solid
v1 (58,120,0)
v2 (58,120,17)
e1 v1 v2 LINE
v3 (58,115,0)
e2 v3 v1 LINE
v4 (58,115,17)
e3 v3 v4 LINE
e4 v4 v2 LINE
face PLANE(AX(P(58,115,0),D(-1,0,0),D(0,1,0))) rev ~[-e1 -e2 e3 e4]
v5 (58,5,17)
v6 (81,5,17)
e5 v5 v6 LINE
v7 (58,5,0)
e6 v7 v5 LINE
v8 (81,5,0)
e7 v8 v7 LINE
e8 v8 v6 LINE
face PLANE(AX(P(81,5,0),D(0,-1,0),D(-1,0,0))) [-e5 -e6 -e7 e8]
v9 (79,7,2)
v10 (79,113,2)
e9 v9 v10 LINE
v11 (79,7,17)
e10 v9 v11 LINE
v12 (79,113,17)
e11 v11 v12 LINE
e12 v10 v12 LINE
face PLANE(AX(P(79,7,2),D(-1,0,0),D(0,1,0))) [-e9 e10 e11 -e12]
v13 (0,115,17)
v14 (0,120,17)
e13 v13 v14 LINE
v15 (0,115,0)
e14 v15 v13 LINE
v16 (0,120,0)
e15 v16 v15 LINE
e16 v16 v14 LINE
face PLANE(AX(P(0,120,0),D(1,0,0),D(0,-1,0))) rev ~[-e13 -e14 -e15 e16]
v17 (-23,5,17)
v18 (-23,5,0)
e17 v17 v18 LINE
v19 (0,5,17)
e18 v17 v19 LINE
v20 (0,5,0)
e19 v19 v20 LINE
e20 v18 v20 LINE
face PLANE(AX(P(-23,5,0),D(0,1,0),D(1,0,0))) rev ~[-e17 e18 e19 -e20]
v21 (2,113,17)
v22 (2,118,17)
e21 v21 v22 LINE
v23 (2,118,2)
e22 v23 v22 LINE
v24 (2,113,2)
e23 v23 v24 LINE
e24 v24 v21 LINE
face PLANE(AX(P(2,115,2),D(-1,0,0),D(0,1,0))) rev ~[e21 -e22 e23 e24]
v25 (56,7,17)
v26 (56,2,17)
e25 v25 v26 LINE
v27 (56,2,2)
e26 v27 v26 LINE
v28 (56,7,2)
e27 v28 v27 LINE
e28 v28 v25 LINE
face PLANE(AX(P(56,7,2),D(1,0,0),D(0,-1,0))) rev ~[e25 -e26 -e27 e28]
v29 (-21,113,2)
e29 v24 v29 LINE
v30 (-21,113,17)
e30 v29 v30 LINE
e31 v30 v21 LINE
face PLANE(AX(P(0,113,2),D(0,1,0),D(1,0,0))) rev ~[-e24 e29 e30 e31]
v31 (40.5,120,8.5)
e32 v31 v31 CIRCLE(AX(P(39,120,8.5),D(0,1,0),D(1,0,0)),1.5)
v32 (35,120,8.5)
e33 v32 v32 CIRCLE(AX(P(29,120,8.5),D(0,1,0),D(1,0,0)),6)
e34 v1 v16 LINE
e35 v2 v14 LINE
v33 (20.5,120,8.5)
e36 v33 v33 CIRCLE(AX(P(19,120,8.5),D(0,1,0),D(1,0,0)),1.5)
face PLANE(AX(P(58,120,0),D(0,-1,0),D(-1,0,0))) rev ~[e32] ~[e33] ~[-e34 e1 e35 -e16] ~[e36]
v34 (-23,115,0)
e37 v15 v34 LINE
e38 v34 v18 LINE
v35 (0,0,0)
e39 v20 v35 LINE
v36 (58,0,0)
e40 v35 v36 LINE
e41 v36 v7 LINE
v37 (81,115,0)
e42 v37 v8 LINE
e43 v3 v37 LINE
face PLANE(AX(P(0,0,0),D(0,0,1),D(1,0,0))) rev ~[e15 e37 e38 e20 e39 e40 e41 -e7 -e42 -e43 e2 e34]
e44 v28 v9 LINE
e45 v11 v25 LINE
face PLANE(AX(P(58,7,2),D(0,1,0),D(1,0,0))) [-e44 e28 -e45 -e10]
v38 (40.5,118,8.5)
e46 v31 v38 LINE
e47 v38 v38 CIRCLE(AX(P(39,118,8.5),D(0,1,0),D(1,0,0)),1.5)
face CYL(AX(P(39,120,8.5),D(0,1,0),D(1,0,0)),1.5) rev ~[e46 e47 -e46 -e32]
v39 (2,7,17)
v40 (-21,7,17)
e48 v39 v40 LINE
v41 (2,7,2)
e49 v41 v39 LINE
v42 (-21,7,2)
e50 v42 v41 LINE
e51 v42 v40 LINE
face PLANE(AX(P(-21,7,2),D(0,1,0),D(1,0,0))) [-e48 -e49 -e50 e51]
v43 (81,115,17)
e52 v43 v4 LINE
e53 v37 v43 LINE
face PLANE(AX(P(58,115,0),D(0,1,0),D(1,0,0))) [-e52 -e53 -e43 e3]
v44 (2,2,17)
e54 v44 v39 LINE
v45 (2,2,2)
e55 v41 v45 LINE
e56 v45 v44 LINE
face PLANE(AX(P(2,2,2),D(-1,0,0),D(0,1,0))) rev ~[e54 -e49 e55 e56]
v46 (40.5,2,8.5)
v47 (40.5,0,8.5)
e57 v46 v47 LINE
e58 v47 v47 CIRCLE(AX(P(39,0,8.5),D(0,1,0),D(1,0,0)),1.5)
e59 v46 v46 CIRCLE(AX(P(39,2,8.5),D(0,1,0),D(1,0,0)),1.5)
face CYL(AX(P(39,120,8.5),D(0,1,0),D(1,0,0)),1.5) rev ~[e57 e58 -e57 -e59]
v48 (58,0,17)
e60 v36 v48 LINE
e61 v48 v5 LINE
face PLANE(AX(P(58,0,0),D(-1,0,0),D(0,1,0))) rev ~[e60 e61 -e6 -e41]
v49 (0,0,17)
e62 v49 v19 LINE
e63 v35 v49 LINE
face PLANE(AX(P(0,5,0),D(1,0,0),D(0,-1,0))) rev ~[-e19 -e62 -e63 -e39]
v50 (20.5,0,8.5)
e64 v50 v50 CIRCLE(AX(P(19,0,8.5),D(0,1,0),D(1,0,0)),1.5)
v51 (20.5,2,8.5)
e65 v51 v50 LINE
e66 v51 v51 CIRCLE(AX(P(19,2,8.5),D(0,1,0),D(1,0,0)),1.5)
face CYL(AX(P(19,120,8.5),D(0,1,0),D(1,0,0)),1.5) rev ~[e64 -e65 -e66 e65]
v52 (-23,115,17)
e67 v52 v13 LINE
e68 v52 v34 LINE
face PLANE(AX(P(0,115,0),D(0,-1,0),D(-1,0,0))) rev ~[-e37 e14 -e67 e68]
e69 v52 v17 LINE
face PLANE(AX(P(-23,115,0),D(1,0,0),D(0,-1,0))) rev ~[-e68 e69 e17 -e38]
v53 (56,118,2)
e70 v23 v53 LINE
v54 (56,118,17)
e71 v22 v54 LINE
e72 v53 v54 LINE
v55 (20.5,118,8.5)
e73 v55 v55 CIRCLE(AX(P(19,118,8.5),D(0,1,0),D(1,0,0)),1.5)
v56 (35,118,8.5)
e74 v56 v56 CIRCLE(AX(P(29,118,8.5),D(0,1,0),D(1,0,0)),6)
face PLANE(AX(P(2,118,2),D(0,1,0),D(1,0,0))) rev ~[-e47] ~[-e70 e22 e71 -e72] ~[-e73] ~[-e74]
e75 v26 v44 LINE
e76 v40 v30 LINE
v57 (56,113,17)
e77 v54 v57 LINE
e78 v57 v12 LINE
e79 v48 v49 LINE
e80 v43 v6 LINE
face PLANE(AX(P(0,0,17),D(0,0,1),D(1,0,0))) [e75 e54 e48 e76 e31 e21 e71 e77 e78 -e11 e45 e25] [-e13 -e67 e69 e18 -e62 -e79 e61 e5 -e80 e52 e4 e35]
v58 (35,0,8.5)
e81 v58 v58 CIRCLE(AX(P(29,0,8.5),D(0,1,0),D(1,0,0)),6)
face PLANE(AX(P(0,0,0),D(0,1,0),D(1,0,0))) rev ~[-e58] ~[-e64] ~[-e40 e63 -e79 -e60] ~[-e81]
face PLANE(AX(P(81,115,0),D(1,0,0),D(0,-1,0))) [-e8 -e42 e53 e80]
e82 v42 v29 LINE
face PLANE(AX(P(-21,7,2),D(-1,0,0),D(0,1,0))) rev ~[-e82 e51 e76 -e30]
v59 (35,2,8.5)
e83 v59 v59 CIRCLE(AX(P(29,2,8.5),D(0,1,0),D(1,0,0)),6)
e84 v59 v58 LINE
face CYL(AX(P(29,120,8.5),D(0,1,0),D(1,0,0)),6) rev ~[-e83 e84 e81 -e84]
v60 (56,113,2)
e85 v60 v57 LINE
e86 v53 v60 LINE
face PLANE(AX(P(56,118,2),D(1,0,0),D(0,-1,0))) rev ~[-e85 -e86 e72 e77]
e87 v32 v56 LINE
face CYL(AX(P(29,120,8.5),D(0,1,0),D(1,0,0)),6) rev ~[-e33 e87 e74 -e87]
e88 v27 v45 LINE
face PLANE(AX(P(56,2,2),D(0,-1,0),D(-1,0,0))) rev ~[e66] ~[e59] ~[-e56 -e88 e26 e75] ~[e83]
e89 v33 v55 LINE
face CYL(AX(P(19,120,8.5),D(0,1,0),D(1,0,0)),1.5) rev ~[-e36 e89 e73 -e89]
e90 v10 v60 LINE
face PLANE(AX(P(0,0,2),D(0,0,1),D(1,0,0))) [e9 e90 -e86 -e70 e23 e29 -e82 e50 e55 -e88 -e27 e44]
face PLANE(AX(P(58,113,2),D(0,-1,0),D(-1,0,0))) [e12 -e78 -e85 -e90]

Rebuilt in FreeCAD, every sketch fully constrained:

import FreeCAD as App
import Part
import Sketcher

V = App.Vector
Q = App.Units.Quantity


def add_polygon(sketch, points):
    """Adds a closed chain of lines whose ends are joined by coincident constraints."""
    first, n = sketch.GeometryCount, len(points)
    for a, b in zip(points, points[1:] + points[:1]):
        sketch.addGeometry(Part.LineSegment(App.Vector(*a, 0), App.Vector(*b, 0)), False)
    for i in range(n):
        sketch.addConstraint(Sketcher.Constraint("Coincident", first + i, 2, first + (i + 1) % n, 1))

doc = App.newDocument("Part")
params = doc.addObject("Spreadsheet::Sheet", "Params")
for row, (alias, value) in enumerate([
    ("sketch1_width", "58 mm"),
    ("sketch1_width2", "23 mm"),
    ("sketch1_height", "5 mm"),
    ("pad1_length", "2 mm"),
    ("sketch2_width", "58 mm"),
    ("sketch2_width2", "23 mm"),
    ("sketch2_height", "5 mm"),
    ("sketch2_height2", "110 mm"),
    ("pad2_length", "15 mm"),
    ("sketch3_diameter", "12 mm"),
    ("sketch3_diameter2", "3 mm"),
    ("pocket1_length", "120 mm"),
], start=1):
    params.set(f"A{row}", alias)
    params.set(f"B{row}", "=" + value)
    params.setAlias(f"B{row}", alias)

body = doc.addObject("PartDesign::Body", "Body")

# Sketch on XY plane
sketch1 = body.newObject("Sketcher::SketchObject", "Sketch")
sketch1.AttachmentSupport = (doc.getObject("XY_Plane"), [""])
sketch1.MapMode = "FlatFace"
add_polygon(sketch1, [(0, 5), (0, 0), (58, 0), (58, 5), (81, 5), (81, 115), (58, 115), (58, 120), (0, 120), (0, 115), (-23, 115), (-23, 5)])  # lines 0-11
sketch1.addConstraint([
    Sketcher.Constraint("Vertical", 0),
    Sketcher.Constraint("Horizontal", 1),
    Sketcher.Constraint("Vertical", 2),
    Sketcher.Constraint("Horizontal", 3),
    Sketcher.Constraint("Vertical", 4),
    Sketcher.Constraint("Horizontal", 5),
    Sketcher.Constraint("Vertical", 6),
    Sketcher.Constraint("Horizontal", 7),
    Sketcher.Constraint("Vertical", 8),
    Sketcher.Constraint("Horizontal", 9),
    Sketcher.Constraint("Vertical", 10),
    Sketcher.Constraint("Horizontal", 11),
    Sketcher.Constraint("Coincident", 0, 2, -1, 1),
    Sketcher.Constraint("PointOnObject", 7, 2, -2),
    Sketcher.Constraint("Horizontal", 5, 2, 8, 2),
    Sketcher.Constraint("Horizontal", 3, 2, 10, 2),
    Sketcher.Constraint("Vertical", 2, 2, 5, 2),
    Sketcher.Constraint("Equal", 5, 9),
    Sketcher.Constraint("Equal", 2, 6),
    Sketcher.Constraint("DistanceX", 1, 1, 1, 2, Q("58 mm")),
    Sketcher.Constraint("DistanceX", 3, 1, 3, 2, Q("23 mm")),
    Sketcher.Constraint("DistanceY", 0, 2, 0, 1, Q("5 mm")),
    Sketcher.Constraint("DistanceY", -1, 1, 6, 2, Q("120 mm")),
])
sketch1.setExpression("Constraints[31]", "Params.sketch1_width")
sketch1.setExpression("Constraints[32]", "Params.sketch1_width2")
sketch1.setExpression("Constraints[33]", "Params.sketch1_height")
pad1 = body.newObject("PartDesign::Pad", "Pad")
pad1.Profile = sketch1
pad1.setExpression("Length", "Params.pad1_length")

# Sketch on XY plane
sketch2 = body.newObject("Sketcher::SketchObject", "Sketch001")
sketch2.AttachmentSupport = (doc.getObject("XY_Plane"), [""])
sketch2.MapMode = "FlatFace"
sketch2.AttachmentOffset = App.Placement(V(0, 0, 2), App.Rotation())
add_polygon(sketch2, [(58, 115), (58, 120), (0, 120), (0, 115), (-23, 115), (-23, 5), (0, 5), (0, 0), (58, 0), (58, 5), (81, 5), (81, 115)])  # lines 0-11
add_polygon(sketch2, [(56, 113), (79, 113), (79, 7), (56, 7), (56, 2), (2, 2), (2, 7), (-21, 7), (-21, 113), (2, 113), (2, 118), (56, 118)])  # lines 12-23
sketch2.addConstraint([
    Sketcher.Constraint("Vertical", 0),
    Sketcher.Constraint("Horizontal", 1),
    Sketcher.Constraint("Vertical", 2),
    Sketcher.Constraint("Horizontal", 3),
    Sketcher.Constraint("Vertical", 4),
    Sketcher.Constraint("Horizontal", 5),
    Sketcher.Constraint("Vertical", 6),
    Sketcher.Constraint("Horizontal", 7),
    Sketcher.Constraint("Vertical", 8),
    Sketcher.Constraint("Horizontal", 9),
    Sketcher.Constraint("Vertical", 10),
    Sketcher.Constraint("Horizontal", 11),
    Sketcher.Constraint("Horizontal", 12),
    Sketcher.Constraint("Vertical", 13),
    Sketcher.Constraint("Horizontal", 14),
    Sketcher.Constraint("Vertical", 15),
    Sketcher.Constraint("Horizontal", 16),
    Sketcher.Constraint("Vertical", 17),
    Sketcher.Constraint("Horizontal", 18),
    Sketcher.Constraint("Vertical", 19),
    Sketcher.Constraint("Horizontal", 20),
    Sketcher.Constraint("Vertical", 21),
    Sketcher.Constraint("Horizontal", 22),
    Sketcher.Constraint("Vertical", 23),
    Sketcher.Constraint("Coincident", 6, 2, -1, 1),
    Sketcher.Constraint("PointOnObject", 1, 2, -2),
    Sketcher.Constraint("Horizontal", 5, 2, 8, 2),
    Sketcher.Constraint("Horizontal", 3, 2, 10, 2),
    Sketcher.Constraint("Horizontal", 14, 2, 17, 2),
    Sketcher.Constraint("Horizontal", 12, 2, 19, 2),
    Sketcher.Constraint("Vertical", 0, 2, 7, 2),
    Sketcher.Constraint("Vertical", 17, 2, 20, 2),
    Sketcher.Constraint("Vertical", 15, 2, 22, 2),
    Sketcher.Constraint("Equal", 5, 9),
    Sketcher.Constraint("Equal", 11, 12),
    Sketcher.Constraint("Equal", 14, 18),
    Sketcher.Constraint("Equal", 2, 6),
    Sketcher.Constraint("Equal", 8, 15),
    Sketcher.Constraint("Equal", 17, 21),
    Sketcher.Constraint("DistanceY", -1, 1, 15, 2, Q("2 mm")),
    Sketcher.Constraint("DistanceX", -1, 1, 16, 2, Q("2 mm")),
    Sketcher.Constraint("DistanceX", 12, 2, 10, 2, Q("2 mm")),
    Sketcher.Constraint("DistanceY", 12, 2, 10, 2, Q("2 mm")),
    Sketcher.Constraint("DistanceX", 1, 2, 1, 1, Q("58 mm")),
    Sketcher.Constraint("DistanceX", 3, 2, 3, 1, Q("23 mm")),
    Sketcher.Constraint("DistanceY", 0, 1, 0, 2, Q("5 mm")),
    Sketcher.Constraint("DistanceY", 4, 2, 4, 1, Q("110 mm")),
])
sketch2.setExpression("Constraints[67]", "Params.sketch2_width")
sketch2.setExpression("Constraints[68]", "Params.sketch2_width2")
sketch2.setExpression("Constraints[69]", "Params.sketch2_height")
sketch2.setExpression("Constraints[70]", "Params.sketch2_height2")
pad2 = body.newObject("PartDesign::Pad", "Pad001")
pad2.Profile = sketch2
pad2.setExpression("Length", "Params.pad2_length")

# Sketch on XZ plane
sketch3 = body.newObject("Sketcher::SketchObject", "Sketch002")
sketch3.AttachmentSupport = (doc.getObject("XZ_Plane"), [""])
sketch3.MapMode = "FlatFace"
sketch3.AttachmentOffset = App.Placement(V(0, 0, -120), App.Rotation())
sketch3.addGeometry([
    Part.Circle(V(29, 8.5, 0), V(0, 0, 1), 6),
    Part.Circle(V(39, 8.5, 0), V(0, 0, 1), 1.5),
    Part.Circle(V(19, 8.5, 0), V(0, 0, 1), 1.5),
], False)
sketch3.addConstraint([
    Sketcher.Constraint("Equal", 1, 2),
    Sketcher.Constraint("Horizontal", 0, 3, 1, 3),
    Sketcher.Constraint("Horizontal", 1, 3, 2, 3),
    Sketcher.Constraint("Diameter", 0, Q("12 mm")),
    Sketcher.Constraint("Diameter", 1, Q("3 mm")),
    Sketcher.Constraint("DistanceX", -1, 1, 0, 3, Q("29 mm")),
    Sketcher.Constraint("DistanceX", 0, 3, 1, 3, Q("10 mm")),
    Sketcher.Constraint("DistanceX", 2, 3, 0, 3, Q("10 mm")),
    Sketcher.Constraint("DistanceY", -1, 1, 0, 3, Q("8.5 mm")),
])
sketch3.setExpression("Constraints[3]", "Params.sketch3_diameter")
sketch3.setExpression("Constraints[4]", "Params.sketch3_diameter2")
pocket1 = body.newObject("PartDesign::Pocket", "Pocket")
pocket1.Profile = sketch3
pocket1.setExpression("Length", "Params.pocket1_length")
pocket1.Reversed = True

doc.recompute()
